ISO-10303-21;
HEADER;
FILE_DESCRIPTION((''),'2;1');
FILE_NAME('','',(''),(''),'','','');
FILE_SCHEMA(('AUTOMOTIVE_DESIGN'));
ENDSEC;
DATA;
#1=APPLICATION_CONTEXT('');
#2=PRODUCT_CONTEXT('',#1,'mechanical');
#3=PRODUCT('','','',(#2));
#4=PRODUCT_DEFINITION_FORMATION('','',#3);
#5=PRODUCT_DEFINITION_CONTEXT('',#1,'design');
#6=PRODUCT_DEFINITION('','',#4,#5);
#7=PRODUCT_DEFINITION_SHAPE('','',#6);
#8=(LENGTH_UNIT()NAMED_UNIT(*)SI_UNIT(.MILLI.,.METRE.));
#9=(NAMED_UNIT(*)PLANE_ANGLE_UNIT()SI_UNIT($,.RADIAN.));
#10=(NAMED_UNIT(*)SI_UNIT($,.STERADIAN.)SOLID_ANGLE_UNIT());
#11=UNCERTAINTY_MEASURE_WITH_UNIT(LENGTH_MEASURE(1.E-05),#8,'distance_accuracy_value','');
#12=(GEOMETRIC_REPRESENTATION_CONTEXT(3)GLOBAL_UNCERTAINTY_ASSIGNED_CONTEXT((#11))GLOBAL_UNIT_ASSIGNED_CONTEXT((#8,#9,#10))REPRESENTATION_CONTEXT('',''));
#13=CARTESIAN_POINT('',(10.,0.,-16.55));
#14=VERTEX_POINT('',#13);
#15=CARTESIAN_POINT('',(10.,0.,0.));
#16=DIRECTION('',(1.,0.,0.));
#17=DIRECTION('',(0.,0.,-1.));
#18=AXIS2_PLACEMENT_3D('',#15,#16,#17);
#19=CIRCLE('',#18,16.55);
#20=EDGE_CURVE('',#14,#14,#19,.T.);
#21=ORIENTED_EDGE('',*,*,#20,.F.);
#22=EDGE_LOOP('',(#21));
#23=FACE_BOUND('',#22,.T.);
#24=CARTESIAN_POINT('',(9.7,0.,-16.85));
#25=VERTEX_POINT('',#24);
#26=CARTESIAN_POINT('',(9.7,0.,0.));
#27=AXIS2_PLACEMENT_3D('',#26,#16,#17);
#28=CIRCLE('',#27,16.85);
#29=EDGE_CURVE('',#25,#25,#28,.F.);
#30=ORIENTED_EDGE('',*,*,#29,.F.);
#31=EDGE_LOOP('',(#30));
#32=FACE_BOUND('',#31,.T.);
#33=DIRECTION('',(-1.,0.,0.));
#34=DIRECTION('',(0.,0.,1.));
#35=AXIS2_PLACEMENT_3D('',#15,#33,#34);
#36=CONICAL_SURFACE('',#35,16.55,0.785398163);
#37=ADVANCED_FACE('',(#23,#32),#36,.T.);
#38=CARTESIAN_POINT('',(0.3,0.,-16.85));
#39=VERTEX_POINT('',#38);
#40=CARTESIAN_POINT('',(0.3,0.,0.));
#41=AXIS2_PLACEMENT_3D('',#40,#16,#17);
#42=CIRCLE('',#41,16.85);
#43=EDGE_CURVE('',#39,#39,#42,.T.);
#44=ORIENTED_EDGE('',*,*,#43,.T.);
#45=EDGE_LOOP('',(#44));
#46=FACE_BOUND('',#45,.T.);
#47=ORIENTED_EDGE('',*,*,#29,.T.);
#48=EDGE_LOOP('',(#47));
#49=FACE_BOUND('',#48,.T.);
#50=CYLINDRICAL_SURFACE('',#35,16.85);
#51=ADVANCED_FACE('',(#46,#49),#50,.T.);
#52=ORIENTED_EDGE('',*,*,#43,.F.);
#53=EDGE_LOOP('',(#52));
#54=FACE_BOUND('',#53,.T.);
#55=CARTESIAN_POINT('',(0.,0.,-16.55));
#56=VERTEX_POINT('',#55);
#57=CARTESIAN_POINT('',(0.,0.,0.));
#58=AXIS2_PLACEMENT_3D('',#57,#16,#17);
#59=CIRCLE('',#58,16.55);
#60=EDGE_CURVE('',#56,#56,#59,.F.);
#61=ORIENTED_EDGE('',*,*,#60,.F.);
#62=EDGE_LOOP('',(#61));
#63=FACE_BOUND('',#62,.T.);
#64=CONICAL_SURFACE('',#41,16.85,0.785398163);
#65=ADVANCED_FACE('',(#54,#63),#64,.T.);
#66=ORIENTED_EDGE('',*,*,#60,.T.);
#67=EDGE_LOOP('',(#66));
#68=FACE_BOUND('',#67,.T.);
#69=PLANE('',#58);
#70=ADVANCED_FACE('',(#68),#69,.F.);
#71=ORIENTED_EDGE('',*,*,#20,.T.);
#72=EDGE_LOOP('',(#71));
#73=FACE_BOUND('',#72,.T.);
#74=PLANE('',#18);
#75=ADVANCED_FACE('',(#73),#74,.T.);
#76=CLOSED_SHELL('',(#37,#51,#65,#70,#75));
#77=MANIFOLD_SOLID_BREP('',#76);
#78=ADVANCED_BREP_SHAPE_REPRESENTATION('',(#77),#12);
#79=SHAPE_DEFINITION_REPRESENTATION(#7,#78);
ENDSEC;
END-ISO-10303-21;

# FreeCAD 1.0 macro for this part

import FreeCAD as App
import Part
import Sketcher

V = App.Vector


def edges_at(feature, points):
    """Names of the edges that pass closest to the given points."""
    edges = feature.Shape.Edges
    near = lambda p: min(range(len(edges)), key=lambda i: edges[i].distToShape(Part.Vertex(*p))[0])
    return sorted({f"Edge{near(p) + 1}" for p in points})

doc = App.newDocument("Part")
body = doc.addObject("PartDesign::Body", "Body")

# Sketch on YZ plane
sketch1 = doc.addObject("Sketcher::SketchObject", "Sketch")
body.addObject(sketch1)
sketch1.AttachmentSupport = (doc.YZ_Plane, [""])
sketch1.MapMode = "FlatFace"
sketch1.addGeometry(Part.Circle(V(0, 0, 0), V(0, 0, 1), 17), False)
sketch1.addConstraint(Sketcher.Constraint("Coincident", 0, 3, -1, 1))
sketch1.addConstraint(Sketcher.Constraint("Diameter", 0, 33.7))
pad1 = doc.addObject("PartDesign::Pad", "Pad")
body.addObject(pad1)
pad1.Profile = sketch1
pad1.Length = 10
doc.recompute()

chamfer = doc.addObject("PartDesign::Chamfer", "Chamfer")
body.addObject(chamfer)
chamfer.Base = (pad1, edges_at(pad1, [(0, 0, 16.85), (10, 0, 16.85)]))
chamfer.Size = 0.3

doc.recompute()
